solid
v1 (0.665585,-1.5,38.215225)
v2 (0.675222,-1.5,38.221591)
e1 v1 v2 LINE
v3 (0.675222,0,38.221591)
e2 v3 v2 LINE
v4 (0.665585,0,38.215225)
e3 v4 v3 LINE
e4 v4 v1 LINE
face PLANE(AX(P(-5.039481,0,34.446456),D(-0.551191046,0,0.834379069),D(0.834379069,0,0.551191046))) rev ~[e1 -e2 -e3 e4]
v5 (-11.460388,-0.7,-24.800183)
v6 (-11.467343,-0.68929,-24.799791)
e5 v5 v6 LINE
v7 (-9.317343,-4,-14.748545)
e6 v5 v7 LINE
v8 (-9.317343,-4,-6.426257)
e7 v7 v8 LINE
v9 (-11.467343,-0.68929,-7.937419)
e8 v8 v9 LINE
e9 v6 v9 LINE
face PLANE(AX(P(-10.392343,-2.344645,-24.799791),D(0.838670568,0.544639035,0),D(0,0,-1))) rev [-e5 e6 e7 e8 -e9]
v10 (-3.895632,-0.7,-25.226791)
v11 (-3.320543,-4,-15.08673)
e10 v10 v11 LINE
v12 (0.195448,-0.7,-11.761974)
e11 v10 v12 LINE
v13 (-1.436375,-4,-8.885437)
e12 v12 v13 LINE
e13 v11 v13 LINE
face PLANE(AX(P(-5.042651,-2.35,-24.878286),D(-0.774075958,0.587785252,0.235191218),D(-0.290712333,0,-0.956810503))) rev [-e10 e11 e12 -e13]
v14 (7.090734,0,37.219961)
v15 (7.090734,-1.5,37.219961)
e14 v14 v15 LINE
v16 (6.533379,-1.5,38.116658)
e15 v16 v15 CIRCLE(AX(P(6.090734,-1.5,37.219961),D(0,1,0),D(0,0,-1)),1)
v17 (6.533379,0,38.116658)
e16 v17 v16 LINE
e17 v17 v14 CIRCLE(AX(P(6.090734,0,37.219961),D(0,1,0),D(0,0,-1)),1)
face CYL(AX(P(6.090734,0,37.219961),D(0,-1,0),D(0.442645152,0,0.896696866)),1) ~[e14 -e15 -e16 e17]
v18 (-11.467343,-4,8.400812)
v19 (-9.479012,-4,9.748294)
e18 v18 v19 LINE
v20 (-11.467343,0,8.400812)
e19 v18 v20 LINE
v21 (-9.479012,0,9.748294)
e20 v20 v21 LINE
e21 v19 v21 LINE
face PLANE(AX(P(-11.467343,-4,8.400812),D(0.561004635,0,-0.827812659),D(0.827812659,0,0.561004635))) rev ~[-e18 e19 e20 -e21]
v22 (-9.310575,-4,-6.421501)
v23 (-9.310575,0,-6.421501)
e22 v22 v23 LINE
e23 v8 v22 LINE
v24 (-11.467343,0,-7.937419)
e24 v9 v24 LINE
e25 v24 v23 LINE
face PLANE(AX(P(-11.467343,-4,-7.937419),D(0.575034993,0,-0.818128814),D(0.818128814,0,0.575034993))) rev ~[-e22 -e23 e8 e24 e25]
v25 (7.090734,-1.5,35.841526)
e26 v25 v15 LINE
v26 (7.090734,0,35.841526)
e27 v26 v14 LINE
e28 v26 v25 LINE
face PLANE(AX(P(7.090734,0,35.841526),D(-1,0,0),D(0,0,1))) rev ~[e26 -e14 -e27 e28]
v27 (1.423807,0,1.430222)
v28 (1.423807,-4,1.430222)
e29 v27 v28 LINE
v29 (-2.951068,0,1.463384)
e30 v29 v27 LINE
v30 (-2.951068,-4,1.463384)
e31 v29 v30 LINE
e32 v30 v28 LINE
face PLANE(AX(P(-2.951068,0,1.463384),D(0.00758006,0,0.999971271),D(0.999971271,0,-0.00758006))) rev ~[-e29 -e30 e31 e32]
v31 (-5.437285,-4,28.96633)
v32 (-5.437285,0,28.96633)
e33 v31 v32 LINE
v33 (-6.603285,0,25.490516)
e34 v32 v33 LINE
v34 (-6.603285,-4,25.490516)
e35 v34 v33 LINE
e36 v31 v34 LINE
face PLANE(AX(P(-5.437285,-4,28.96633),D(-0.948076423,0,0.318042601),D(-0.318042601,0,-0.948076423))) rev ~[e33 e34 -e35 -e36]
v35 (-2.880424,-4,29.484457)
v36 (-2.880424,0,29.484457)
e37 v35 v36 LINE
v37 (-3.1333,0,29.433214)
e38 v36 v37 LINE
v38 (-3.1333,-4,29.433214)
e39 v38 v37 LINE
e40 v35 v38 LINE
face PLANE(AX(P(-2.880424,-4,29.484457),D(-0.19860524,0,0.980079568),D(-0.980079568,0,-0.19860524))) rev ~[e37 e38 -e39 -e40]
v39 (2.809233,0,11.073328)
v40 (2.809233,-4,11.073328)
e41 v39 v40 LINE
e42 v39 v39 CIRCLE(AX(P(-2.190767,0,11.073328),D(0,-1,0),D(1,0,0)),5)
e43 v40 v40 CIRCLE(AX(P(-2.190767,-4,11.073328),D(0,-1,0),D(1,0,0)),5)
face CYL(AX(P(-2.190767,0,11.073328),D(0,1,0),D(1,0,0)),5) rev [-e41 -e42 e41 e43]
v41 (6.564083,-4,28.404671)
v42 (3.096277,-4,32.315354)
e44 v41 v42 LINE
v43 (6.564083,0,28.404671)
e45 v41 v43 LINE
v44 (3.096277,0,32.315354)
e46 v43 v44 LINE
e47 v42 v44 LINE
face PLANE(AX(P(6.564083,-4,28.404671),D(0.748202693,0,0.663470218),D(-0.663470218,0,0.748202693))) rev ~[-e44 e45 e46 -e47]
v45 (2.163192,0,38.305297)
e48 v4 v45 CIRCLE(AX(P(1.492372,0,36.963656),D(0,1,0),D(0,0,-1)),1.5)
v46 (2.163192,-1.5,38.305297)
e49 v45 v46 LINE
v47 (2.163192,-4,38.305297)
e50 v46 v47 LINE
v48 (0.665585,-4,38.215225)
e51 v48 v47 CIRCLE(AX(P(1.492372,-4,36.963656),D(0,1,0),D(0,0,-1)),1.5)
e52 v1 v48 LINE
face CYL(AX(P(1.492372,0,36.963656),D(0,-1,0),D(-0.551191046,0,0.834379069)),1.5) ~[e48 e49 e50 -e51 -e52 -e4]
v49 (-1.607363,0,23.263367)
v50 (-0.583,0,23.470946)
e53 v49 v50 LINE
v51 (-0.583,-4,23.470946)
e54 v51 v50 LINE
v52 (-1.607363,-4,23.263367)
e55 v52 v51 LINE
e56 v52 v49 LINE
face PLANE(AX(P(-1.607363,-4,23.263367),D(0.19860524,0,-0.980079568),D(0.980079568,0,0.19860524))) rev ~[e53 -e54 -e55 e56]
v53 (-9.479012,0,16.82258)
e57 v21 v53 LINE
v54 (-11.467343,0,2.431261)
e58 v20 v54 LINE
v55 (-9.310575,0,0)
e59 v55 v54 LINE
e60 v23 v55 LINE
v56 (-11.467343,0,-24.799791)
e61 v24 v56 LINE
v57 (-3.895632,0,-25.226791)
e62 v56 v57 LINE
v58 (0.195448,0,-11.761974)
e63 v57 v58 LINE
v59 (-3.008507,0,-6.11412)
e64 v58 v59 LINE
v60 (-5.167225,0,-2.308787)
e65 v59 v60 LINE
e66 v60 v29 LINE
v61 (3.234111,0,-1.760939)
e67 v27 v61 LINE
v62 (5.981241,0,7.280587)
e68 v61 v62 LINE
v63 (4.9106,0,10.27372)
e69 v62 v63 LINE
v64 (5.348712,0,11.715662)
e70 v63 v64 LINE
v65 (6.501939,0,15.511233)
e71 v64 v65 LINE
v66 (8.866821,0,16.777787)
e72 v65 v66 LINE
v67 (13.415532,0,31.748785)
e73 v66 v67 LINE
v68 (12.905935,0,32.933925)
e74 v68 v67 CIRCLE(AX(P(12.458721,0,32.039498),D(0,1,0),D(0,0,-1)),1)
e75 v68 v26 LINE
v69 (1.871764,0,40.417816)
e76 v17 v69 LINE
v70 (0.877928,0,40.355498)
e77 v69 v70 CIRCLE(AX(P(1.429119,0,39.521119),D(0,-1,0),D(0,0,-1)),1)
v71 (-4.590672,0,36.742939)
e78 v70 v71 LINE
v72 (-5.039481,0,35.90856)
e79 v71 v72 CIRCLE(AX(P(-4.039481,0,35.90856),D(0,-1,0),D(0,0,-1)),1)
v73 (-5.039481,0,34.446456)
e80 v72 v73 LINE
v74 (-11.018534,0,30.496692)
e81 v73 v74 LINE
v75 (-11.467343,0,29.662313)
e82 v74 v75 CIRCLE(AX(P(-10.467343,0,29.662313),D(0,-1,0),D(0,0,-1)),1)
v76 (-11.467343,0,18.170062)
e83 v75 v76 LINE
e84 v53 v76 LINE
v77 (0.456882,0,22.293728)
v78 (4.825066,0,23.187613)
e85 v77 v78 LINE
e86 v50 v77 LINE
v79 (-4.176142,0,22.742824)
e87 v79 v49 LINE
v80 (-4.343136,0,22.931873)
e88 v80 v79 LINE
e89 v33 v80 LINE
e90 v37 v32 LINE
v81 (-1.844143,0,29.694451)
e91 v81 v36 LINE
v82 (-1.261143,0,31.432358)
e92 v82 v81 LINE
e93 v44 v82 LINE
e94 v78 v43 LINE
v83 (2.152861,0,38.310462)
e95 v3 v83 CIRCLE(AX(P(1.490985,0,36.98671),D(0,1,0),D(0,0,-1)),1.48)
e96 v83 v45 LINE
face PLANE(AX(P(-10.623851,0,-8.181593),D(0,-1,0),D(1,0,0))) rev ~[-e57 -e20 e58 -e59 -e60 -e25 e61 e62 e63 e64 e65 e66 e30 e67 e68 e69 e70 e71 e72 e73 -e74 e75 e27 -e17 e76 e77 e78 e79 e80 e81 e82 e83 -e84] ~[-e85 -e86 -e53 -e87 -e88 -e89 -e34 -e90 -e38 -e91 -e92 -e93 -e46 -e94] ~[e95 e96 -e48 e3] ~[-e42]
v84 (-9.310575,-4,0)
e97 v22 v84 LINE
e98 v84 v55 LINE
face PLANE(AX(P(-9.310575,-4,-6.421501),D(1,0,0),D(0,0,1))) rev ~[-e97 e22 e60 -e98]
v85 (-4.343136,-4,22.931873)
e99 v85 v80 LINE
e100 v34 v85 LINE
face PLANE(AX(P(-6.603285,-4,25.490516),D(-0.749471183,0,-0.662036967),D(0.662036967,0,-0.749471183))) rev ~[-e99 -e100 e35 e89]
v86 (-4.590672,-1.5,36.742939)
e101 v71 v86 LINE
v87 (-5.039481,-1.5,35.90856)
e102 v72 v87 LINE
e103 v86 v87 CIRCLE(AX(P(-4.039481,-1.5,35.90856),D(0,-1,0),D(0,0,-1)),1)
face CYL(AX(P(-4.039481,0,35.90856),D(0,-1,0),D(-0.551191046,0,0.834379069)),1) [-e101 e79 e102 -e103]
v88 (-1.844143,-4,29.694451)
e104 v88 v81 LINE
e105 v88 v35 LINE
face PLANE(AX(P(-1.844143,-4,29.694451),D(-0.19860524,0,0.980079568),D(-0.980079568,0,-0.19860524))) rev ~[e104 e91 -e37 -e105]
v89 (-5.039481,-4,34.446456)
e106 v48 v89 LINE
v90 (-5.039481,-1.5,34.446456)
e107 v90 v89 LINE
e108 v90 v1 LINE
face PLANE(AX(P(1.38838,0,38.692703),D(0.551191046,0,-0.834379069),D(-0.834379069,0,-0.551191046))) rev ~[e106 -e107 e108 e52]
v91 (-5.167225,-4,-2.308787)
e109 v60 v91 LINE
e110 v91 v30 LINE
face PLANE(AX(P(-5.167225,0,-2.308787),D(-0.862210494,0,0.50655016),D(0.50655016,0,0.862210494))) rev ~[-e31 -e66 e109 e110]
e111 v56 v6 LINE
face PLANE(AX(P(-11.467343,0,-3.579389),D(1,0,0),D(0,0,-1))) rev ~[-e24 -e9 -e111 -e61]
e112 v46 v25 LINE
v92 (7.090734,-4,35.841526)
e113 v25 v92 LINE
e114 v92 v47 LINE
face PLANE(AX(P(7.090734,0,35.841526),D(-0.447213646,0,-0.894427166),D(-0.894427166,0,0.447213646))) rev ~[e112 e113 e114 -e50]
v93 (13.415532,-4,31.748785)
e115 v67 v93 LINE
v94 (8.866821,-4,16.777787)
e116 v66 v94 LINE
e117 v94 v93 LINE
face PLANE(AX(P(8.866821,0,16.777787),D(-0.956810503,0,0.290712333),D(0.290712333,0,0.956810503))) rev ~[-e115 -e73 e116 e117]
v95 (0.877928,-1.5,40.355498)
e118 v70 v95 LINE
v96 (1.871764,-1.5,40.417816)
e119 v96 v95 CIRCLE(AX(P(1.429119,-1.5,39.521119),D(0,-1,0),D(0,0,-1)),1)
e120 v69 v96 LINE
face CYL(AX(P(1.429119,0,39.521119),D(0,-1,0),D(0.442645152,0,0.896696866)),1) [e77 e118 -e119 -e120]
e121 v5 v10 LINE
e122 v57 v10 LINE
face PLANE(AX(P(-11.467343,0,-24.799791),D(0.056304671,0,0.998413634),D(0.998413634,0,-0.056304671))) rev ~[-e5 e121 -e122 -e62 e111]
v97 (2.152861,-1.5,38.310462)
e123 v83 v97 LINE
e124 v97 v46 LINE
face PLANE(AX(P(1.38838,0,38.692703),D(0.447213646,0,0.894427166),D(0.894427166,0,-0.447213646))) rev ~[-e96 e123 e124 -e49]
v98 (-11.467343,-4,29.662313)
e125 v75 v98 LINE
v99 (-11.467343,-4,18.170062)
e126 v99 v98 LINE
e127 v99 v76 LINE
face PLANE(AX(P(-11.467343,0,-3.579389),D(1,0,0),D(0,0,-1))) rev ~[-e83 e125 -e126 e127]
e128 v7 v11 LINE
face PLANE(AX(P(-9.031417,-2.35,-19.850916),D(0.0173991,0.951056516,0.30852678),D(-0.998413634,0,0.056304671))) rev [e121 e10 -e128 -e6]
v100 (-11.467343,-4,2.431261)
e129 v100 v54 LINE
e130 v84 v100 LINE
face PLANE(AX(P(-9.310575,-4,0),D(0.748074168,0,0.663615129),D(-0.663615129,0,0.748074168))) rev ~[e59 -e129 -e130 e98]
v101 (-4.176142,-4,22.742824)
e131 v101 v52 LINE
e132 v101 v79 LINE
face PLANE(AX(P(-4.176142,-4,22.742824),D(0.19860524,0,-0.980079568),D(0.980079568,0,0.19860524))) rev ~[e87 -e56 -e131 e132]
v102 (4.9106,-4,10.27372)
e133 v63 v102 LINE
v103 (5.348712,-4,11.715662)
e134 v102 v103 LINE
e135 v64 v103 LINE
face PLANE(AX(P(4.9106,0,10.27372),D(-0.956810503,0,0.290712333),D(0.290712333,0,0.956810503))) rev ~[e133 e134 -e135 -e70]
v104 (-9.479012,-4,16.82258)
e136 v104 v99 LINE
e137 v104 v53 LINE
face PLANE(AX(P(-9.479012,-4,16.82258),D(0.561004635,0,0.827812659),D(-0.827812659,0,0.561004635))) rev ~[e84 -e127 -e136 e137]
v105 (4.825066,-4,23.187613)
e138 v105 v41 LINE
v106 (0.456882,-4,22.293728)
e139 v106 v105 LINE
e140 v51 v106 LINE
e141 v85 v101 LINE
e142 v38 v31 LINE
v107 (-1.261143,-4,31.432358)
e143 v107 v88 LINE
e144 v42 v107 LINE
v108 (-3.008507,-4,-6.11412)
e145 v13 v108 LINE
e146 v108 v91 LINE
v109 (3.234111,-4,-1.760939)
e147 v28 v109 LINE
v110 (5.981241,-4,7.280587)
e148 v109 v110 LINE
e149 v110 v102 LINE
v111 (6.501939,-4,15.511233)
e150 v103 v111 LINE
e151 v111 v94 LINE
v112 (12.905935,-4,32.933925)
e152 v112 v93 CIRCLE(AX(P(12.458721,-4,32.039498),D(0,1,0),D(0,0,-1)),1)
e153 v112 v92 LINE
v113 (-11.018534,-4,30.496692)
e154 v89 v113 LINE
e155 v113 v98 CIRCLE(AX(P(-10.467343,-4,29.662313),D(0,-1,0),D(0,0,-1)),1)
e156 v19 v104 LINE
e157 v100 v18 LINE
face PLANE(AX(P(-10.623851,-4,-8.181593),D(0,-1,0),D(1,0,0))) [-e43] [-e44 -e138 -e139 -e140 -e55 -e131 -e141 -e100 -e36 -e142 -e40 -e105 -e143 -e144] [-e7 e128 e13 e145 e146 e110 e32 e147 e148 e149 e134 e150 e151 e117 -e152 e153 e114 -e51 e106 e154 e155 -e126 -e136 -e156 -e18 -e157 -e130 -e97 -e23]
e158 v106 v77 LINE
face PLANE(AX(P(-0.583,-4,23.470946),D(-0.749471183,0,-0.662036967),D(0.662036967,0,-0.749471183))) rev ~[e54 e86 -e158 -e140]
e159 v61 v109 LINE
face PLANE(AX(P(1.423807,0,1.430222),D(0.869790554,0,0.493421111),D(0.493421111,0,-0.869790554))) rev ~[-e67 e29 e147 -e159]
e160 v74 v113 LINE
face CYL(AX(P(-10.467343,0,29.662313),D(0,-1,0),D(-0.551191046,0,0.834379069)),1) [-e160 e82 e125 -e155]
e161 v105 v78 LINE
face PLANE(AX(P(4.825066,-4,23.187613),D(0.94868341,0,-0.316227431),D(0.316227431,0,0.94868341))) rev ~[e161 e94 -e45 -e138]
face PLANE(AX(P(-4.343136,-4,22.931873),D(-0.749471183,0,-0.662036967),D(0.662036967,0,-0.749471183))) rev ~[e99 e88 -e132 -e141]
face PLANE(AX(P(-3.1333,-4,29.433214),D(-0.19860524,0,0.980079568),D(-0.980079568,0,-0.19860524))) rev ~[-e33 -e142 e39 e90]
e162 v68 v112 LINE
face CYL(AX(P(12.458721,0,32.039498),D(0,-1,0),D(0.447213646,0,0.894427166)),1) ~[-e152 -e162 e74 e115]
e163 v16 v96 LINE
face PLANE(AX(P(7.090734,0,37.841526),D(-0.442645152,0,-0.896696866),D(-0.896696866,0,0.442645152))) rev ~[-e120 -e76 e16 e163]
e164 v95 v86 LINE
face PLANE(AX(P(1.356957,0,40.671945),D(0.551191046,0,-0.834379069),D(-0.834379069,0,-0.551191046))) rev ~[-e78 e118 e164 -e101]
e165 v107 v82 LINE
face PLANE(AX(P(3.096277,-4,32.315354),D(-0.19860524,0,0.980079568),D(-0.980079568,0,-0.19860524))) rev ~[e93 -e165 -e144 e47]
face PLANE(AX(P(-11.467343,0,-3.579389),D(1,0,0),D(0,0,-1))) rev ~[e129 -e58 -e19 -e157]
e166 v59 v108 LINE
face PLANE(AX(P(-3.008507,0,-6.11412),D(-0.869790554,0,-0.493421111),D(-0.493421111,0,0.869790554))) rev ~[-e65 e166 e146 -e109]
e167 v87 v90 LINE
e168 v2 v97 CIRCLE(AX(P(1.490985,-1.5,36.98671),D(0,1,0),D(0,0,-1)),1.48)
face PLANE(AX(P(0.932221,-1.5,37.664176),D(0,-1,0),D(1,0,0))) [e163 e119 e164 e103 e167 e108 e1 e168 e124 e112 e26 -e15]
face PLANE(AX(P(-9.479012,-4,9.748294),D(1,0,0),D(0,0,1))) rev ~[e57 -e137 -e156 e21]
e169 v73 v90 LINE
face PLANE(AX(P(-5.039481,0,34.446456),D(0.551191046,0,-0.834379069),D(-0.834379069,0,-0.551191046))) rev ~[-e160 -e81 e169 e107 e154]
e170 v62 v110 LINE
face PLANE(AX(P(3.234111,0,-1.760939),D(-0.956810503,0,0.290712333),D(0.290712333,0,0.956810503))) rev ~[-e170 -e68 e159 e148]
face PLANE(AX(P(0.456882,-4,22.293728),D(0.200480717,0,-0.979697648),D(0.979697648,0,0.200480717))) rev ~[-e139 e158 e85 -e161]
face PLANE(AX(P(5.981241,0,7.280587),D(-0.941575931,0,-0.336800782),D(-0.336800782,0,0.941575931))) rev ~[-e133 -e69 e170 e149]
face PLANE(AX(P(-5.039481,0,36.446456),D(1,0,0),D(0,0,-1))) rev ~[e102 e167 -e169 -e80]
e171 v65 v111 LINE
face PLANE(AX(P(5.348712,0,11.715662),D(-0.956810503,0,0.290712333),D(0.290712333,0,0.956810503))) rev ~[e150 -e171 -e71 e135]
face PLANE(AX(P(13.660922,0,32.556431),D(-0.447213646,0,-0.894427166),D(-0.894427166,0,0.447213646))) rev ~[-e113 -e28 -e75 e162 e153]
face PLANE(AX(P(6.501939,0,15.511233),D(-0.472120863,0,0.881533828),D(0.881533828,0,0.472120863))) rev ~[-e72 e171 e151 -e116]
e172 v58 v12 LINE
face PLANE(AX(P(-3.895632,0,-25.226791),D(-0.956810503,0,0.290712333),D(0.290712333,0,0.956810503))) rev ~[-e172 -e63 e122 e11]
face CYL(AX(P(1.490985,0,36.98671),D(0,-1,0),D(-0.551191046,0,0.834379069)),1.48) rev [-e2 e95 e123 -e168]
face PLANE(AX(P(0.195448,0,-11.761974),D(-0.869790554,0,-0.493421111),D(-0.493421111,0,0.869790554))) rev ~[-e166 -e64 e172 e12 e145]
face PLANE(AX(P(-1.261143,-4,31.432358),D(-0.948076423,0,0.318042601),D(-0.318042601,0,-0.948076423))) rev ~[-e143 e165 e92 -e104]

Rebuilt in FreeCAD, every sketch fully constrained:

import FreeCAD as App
import Part
import Sketcher

V = App.Vector
Q = App.Units.Quantity


def edges_at(feature, points):
    """Names of the edges that pass closest to the given points."""
    edges = feature.Shape.Edges
    near = lambda p: min(range(len(edges)), key=lambda i: edges[i].distToShape(Part.Vertex(*p))[0])
    return sorted({f"Edge{near(p) + 1}" for p in points})

doc = App.newDocument("Part")
body = doc.addObject("PartDesign::Body", "Body")

# Sketch on XZ plane
sketch1 = doc.addObject("Sketcher::SketchObject", "Sketch")
body.addObject(sketch1)
sketch1.AttachmentSupport = (doc.XZ_Plane, [""])
sketch1.MapMode = "FlatFace"
sketch1.addGeometry([
    Part.LineSegment(V(-5.039481, 34.446456, 0), V(-11.467343, 30.200209, 0)),  # 0
    Part.LineSegment(V(-11.467343, 30.200209, 0), V(-11.467343, 14.318069, 0)),  # 1
    Part.LineSegment(V(-11.467343, 14.318069, 0), V(-9.520547, 12.954452, 0)),  # 2
    Part.LineSegment(V(-9.520547, 12.954452, 0), V(-9.520547, 5.965922, 0)),  # 3
    Part.LineSegment(V(-9.520547, 5.965922, 0), V(-11.467343, 4.602306, 0)),  # 4
    Part.LineSegment(V(-11.467343, 4.602306, 0), V(-11.467343, -3.579389, 0)),  # 5
    Part.LineSegment(V(-11.467343, -3.579389, 0), V(-9.520547, -4.943006, 0)),  # 6
    Part.LineSegment(V(-9.520547, -4.943006, 0), V(-9.520547, -11.420181, 0)),  # 7
    Part.LineSegment(V(-9.520547, -11.420181, 0), V(-11.467343, -12.783796, 0)),  # 8
    Part.LineSegment(V(-11.467343, -12.783796, 0), V(-11.467343, -24.799791, 0)),  # 9
    Part.LineSegment(V(-11.467343, -24.799791, 0), V(-3.895632, -25.226791, 0)),  # 10
    Part.LineSegment(V(-3.895632, -25.226791, 0), V(0.195448, -11.761974, 0)),  # 11
    Part.LineSegment(V(0.195448, -11.761974, 0), V(-3.008507, -6.11412, 0)),  # 12
    Part.LineSegment(V(-3.008507, -6.11412, 0), V(-5.167225, -2.308787, 0)),  # 13
    Part.LineSegment(V(-5.167225, -2.308787, 0), V(-2.951068, 1.463384, 0)),  # 14
    Part.LineSegment(V(-2.951068, 1.463384, 0), V(1.423807, 1.430222, 0)),  # 15
    Part.LineSegment(V(1.423807, 1.430222, 0), V(3.234111, -1.760939, 0)),  # 16
    Part.LineSegment(V(3.234111, -1.760939, 0), V(5.981241, 7.280587, 0)),  # 17
    Part.LineSegment(V(5.981241, 7.280587, 0), V(4.9106, 10.27372, 0)),  # 18
    Part.LineSegment(V(4.9106, 10.27372, 0), V(5.348712, 11.715662, 0)),  # 19
    Part.LineSegment(V(5.348712, 11.715662, 0), V(6.501939, 15.511233, 0)),  # 20
    Part.LineSegment(V(6.501939, 15.511233, 0), V(8.866821, 16.777787, 0)),  # 21
    Part.LineSegment(V(8.866821, 16.777787, 0), V(13.660922, 32.556431, 0)),  # 22
    Part.LineSegment(V(13.660922, 32.556431, 0), V(7.090734, 35.841526, 0)),  # 23
    Part.LineSegment(V(7.090734, 35.841526, 0), V(1.38838, 38.692703, 0)),  # 24
    Part.LineSegment(V(1.38838, 38.692703, 0), V(-5.039481, 34.446456, 0)),  # 25
    Part.Circle(V(-2.190767, 11.073328, 0), V(0, 0, 1), 5),  # 26
], False)
sketch1.addConstraint([
    Sketcher.Constraint("Coincident", 0, 2, 1, 1),
    Sketcher.Constraint("Coincident", 1, 2, 2, 1),
    Sketcher.Constraint("Coincident", 2, 2, 3, 1),
    Sketcher.Constraint("Coincident", 3, 2, 4, 1),
    Sketcher.Constraint("Coincident", 4, 2, 5, 1),
    Sketcher.Constraint("Coincident", 5, 2, 6, 1),
    Sketcher.Constraint("Coincident", 6, 2, 7, 1),
    Sketcher.Constraint("Coincident", 7, 2, 8, 1),
    Sketcher.Constraint("Coincident", 8, 2, 9, 1),
    Sketcher.Constraint("Coincident", 9, 2, 10, 1),
    Sketcher.Constraint("Coincident", 10, 2, 11, 1),
    Sketcher.Constraint("Coincident", 11, 2, 12, 1),
    Sketcher.Constraint("Coincident", 12, 2, 13, 1),
    Sketcher.Constraint("Coincident", 13, 2, 14, 1),
    Sketcher.Constraint("Coincident", 14, 2, 15, 1),
    Sketcher.Constraint("Coincident", 15, 2, 16, 1),
    Sketcher.Constraint("Coincident", 16, 2, 17, 1),
    Sketcher.Constraint("Coincident", 17, 2, 18, 1),
    Sketcher.Constraint("Coincident", 18, 2, 19, 1),
    Sketcher.Constraint("Coincident", 19, 2, 20, 1),
    Sketcher.Constraint("Coincident", 20, 2, 21, 1),
    Sketcher.Constraint("Coincident", 21, 2, 22, 1),
    Sketcher.Constraint("Coincident", 22, 2, 23, 1),
    Sketcher.Constraint("Coincident", 23, 2, 24, 1),
    Sketcher.Constraint("Coincident", 24, 2, 25, 1),
    Sketcher.Constraint("Coincident", 25, 2, 0, 1),
    Sketcher.Constraint("Vertical", 1),
    Sketcher.Constraint("Vertical", 3),
    Sketcher.Constraint("Vertical", 5),
    Sketcher.Constraint("Vertical", 7),
    Sketcher.Constraint("Vertical", 9),
    Sketcher.Constraint("Parallel", 2, 6),
    Sketcher.Constraint("Parallel", 4, 8),
    Sketcher.Constraint("Parallel", 12, 13),
    Sketcher.Constraint("Parallel", 13, 16),
    Sketcher.Constraint("Parallel", 11, 17),
    Sketcher.Constraint("Parallel", 17, 19),
    Sketcher.Constraint("Parallel", 19, 20),
    Sketcher.Constraint("Parallel", 20, 22),
    Sketcher.Constraint("Parallel", 23, 24),
    Sketcher.Constraint("Parallel", 0, 25),
    Sketcher.Constraint("Vertical", 1, 2, 4, 2),
    Sketcher.Constraint("Vertical", 3, 2, 6, 2),
    Sketcher.Constraint("Vertical", 5, 2, 8, 2),
    Sketcher.Constraint("Equal", 2, 4),
    Sketcher.Constraint("Equal", 13, 14),
    Sketcher.Constraint("Equal", 14, 15),
    Sketcher.Constraint("Equal", 0, 25),
    Sketcher.Constraint("Diameter", 26, Q("10 mm")),
    Sketcher.Constraint("Distance", 13, Q("4.375 mm")),
    Sketcher.Constraint("DistanceY", 10, 2, 9, 2, Q("0.427 mm")),
    Sketcher.Constraint("Distance", 20, Q("3.9669 mm")),
    Sketcher.Constraint("DistanceY", 1, 2, 1, 1, Q("15.88214 mm")),
    Sketcher.Constraint("DistanceY", 3, 2, 3, 1, Q("6.988531 mm")),
    Sketcher.Constraint("DistanceX", -1, 1, 18, 2, Q("4.9106 mm")),
    Sketcher.Constraint("DistanceY", 9, 2, 5, 2, Q("21.220402 mm")),
    Sketcher.Constraint("DistanceY", 15, 2, 3, 2, Q("4.5357 mm")),
    Sketcher.Constraint("DistanceY", 15, 2, 18, 2, Q("8.843499 mm")),
    Sketcher.Constraint("DistanceY", 17, 2, 21, 2, Q("9.4972 mm")),
    Sketcher.Constraint("DistanceX", 21, 2, 22, 2, Q("4.794101 mm")),
    Sketcher.Constraint("DistanceY", 20, 2, 22, 2, Q("17.045198 mm")),
    Sketcher.Constraint("Distance", 2, Q("2.37686 mm")),
    Sketcher.Constraint("Distance", 10, Q("7.583742 mm")),
    Sketcher.Constraint("Distance", 12, Q("6.49335 mm")),
    Sketcher.Constraint("Distance", 17, Q("9.449651 mm")),
    Sketcher.Constraint("Distance", 19, Q("1.507029 mm")),
    Sketcher.Constraint("Distance", 21, Q("2.68269 mm")),
    Sketcher.Constraint("DistanceY", 5, 2, 5, 1, Q("8.181695 mm")),
    Sketcher.Constraint("DistanceY", 7, 2, 7, 1, Q("6.477175 mm")),
    Sketcher.Constraint("DistanceY", 9, 2, 9, 1, Q("12.015995 mm")),
    Sketcher.Constraint("DistanceY", -1, 1, 0, 2, Q("30.200209 mm")),
    Sketcher.Constraint("DistanceX", 10, 2, -1, 1, Q("3.895632 mm")),
    Sketcher.Constraint("DistanceX", -1, 1, 11, 2, Q("0.195448 mm")),
    Sketcher.Constraint("DistanceY", 12, 2, -1, 1, Q("6.11412 mm")),
    Sketcher.Constraint("DistanceX", -1, 1, 16, 2, Q("3.234111 mm")),
    Sketcher.Constraint("DistanceY", 16, 2, -1, 1, Q("1.760939 mm")),
    Sketcher.Constraint("DistanceX", -1, 1, 24, 2, Q("1.38838 mm")),
    Sketcher.Constraint("DistanceY", 26, 3, 0, 2, Q("19.126881 mm")),
    Sketcher.Constraint("DistanceX", 2, 2, 26, 3, Q("7.32978 mm")),
    Sketcher.Constraint("DistanceX", 23, 2, 22, 2, Q("6.570189 mm")),
    Sketcher.Constraint("DistanceY", 21, 2, 23, 2, Q("19.063739 mm")),
])
pad1 = doc.addObject("PartDesign::Pad", "Pad")
body.addObject(pad1)
pad1.Profile = sketch1
pad1.Length = 4
doc.recompute()

fillet = doc.addObject("PartDesign::Fillet", "Fillet")
body.addObject(fillet)
fillet.Base = (pad1, edges_at(pad1, [(-11.467, -2, 30.2), (13.661, -2, 32.556)]))
fillet.Radius = 1
doc.recompute()

fillet2 = doc.addObject("PartDesign::Fillet", "Fillet001")
body.addObject(fillet2)
fillet2.Base = (fillet, edges_at(fillet, [(1.388, -2, 38.693)]))
fillet2.Radius = 1.5

# Sketch on XZ plane
sketch2 = doc.addObject("Sketcher::SketchObject", "Sketch001")
body.addObject(sketch2)
sketch2.AttachmentSupport = (doc.XZ_Plane, [""])
sketch2.MapMode = "FlatFace"
sketch2.addGeometry([
    Part.LineSegment(V(-5.039481, 36.446456, 0), V(-5.039481, 34.446456, 0)),  # 0
    Part.LineSegment(V(-5.039481, 34.446456, 0), V(1.38838, 38.692703, 0)),  # 1
    Part.LineSegment(V(1.38838, 38.692703, 0), V(7.090734, 35.841526, 0)),  # 2
    Part.LineSegment(V(7.090734, 35.841526, 0), V(7.090734, 37.841526, 0)),  # 3
    Part.LineSegment(V(7.090734, 37.841526, 0), V(1.356957, 40.671945, 0)),  # 4
    Part.LineSegment(V(1.356957, 40.671945, 0), V(-5.039481, 36.446456, 0)),  # 5
], False)
sketch2.addConstraint([
    Sketcher.Constraint("Coincident", 0, 2, 1, 1),
    Sketcher.Constraint("Coincident", 1, 2, 2, 1),
    Sketcher.Constraint("Coincident", 2, 2, 3, 1),
    Sketcher.Constraint("Coincident", 3, 2, 4, 1),
    Sketcher.Constraint("Coincident", 4, 2, 5, 1),
    Sketcher.Constraint("Coincident", 5, 2, 0, 1),
    Sketcher.Constraint("Vertical", 0),
    Sketcher.Constraint("Vertical", 3),
    Sketcher.Constraint("Parallel", 1, 5),
    Sketcher.Constraint("Equal", 0, 3),
    Sketcher.Constraint("DistanceY", 0, 2, 0, 1, Q("2 mm")),
    Sketcher.Constraint("Distance", 4, Q("6.394331 mm")),
    Sketcher.Constraint("DistanceX", 0, 2, -1, 1, Q("5.039481 mm")),
    Sketcher.Constraint("DistanceX", -1, 1, 1, 2, Q("1.38838 mm")),
    Sketcher.Constraint("DistanceY", 0, 2, 2, 2, Q("1.39507 mm")),
    Sketcher.Constraint("DistanceY", 3, 2, 4, 2, Q("2.83042 mm")),
    Sketcher.Constraint("DistanceX", 0, 2, 4, 2, Q("6.396439 mm")),
    Sketcher.Constraint("DistanceY", -1, 1, 0, 2, Q("34.446456 mm")),
])
pad2 = doc.addObject("PartDesign::Pad", "Pad001")
body.addObject(pad2)
pad2.Profile = sketch2
pad2.Length = 1.5
doc.recompute()

fillet3 = doc.addObject("PartDesign::Fillet", "Fillet002")
body.addObject(fillet3)
fillet3.Base = (pad2, edges_at(pad2, [(1.388, -0.75, 38.693)]))
fillet3.Radius = 1.48
doc.recompute()

fillet4 = doc.addObject("PartDesign::Fillet", "Fillet003")
body.addObject(fillet4)
fillet4.Base = (fillet3, edges_at(fillet3, [(1.357, -0.75, 40.672)]))
fillet4.Radius = 1
doc.recompute()

fillet5 = doc.addObject("PartDesign::Fillet", "Fillet004")
body.addObject(fillet5)
fillet5.Base = (fillet4, edges_at(fillet4, [(7.091, -0.75, 37.842), (-5.039, -0.75, 36.446)]))
fillet5.Radius = 1

# Sketch on XZ plane
sketch3 = doc.addObject("Sketcher::SketchObject", "Sketch002")
body.addObject(sketch3)
sketch3.AttachmentSupport = (doc.XZ_Plane, [""])
sketch3.MapMode = "FlatFace"
sketch3.addGeometry([
    Part.LineSegment(V(-9.520547, 12.954452, 0), V(-11.467343, 14.318069, 0)),
    Part.LineSegment(V(-11.467343, 14.318069, 0), V(-11.467343, 4.602306, 0)),
    Part.LineSegment(V(-11.467343, 4.602306, 0), V(-9.520547, 5.965922, 0)),
    Part.LineSegment(V(-9.520547, 5.965922, 0), V(-9.520547, 12.954452, 0)),
], False)
sketch3.addConstraint([
    Sketcher.Constraint("Coincident", 0, 2, 1, 1),
    Sketcher.Constraint("Coincident", 1, 2, 2, 1),
    Sketcher.Constraint("Coincident", 2, 2, 3, 1),
    Sketcher.Constraint("Coincident", 3, 2, 0, 1),
    Sketcher.Constraint("Vertical", 1),
    Sketcher.Constraint("Vertical", 3),
    Sketcher.Constraint("Equal", 0, 2),
    Sketcher.Constraint("DistanceY", 3, 1, 3, 2, Q("6.988531 mm")),
    Sketcher.Constraint("Distance", 0, Q("2.37686 mm")),
    Sketcher.Constraint("DistanceY", 1, 2, 1, 1, Q("9.715763 mm")),
    Sketcher.Constraint("DistanceY", -1, 1, 0, 2, Q("14.318069 mm")),
    Sketcher.Constraint("DistanceX", 0, 2, -1, 1, Q("11.467343 mm")),
])
pad3 = doc.addObject("PartDesign::Pad", "Pad002")
body.addObject(pad3)
pad3.Profile = sketch3
pad3.Length = 4

# Sketch on XZ plane
sketch4 = doc.addObject("Sketcher::SketchObject", "Sketch003")
body.addObject(sketch4)
sketch4.AttachmentSupport = (doc.XZ_Plane, [""])
sketch4.MapMode = "FlatFace"
sketch4.addGeometry([
    Part.LineSegment(V(-9.520547, -4.943006, 0), V(-11.467343, -3.579389, 0)),
    Part.LineSegment(V(-11.467343, -3.579389, 0), V(-11.467343, -12.783796, 0)),
    Part.LineSegment(V(-11.467343, -12.783796, 0), V(-9.520547, -11.420181, 0)),
    Part.LineSegment(V(-9.520547, -11.420181, 0), V(-9.520547, -4.943006, 0)),
], False)
sketch4.addConstraint([
    Sketcher.Constraint("Coincident", 0, 2, 1, 1),
    Sketcher.Constraint("Coincident", 1, 2, 2, 1),
    Sketcher.Constraint("Coincident", 2, 2, 3, 1),
    Sketcher.Constraint("Coincident", 3, 2, 0, 1),
    Sketcher.Constraint("Vertical", 1),
    Sketcher.Constraint("Vertical", 3),
    Sketcher.Constraint("Equal", 0, 2),
    Sketcher.Constraint("Distance", 0, Q("2.37686 mm")),
    Sketcher.Constraint("DistanceY", 1, 2, 1, 1, Q("9.204407 mm")),
    Sketcher.Constraint("DistanceY", 3, 1, 3, 2, Q("6.477175 mm")),
    Sketcher.Constraint("DistanceY", 0, 2, -1, 1, Q("3.579389 mm")),
    Sketcher.Constraint("DistanceX", 0, 2, -1, 1, Q("11.467343 mm")),
])
pad4 = doc.addObject("PartDesign::Pad", "Pad003")
body.addObject(pad4)
pad4.Profile = sketch4
pad4.Length = 4

# Sketch on XZ plane
sketch5 = doc.addObject("Sketcher::SketchObject", "Sketch004")
body.addObject(sketch5)
sketch5.AttachmentSupport = (doc.XZ_Plane, [""])
sketch5.MapMode = "FlatFace"
sketch5.AttachmentOffset = App.Placement(V(0, 0, 4), App.Rotation())
sketch5.addGeometry([
    Part.LineSegment(V(-11.467343, 18.170062, 0), V(-11.467343, 8.400812, 0)),
    Part.LineSegment(V(-11.467343, 8.400812, 0), V(-9.479012, 9.748294, 0)),
    Part.LineSegment(V(-9.479012, 9.748294, 0), V(-9.479012, 16.82258, 0)),
    Part.LineSegment(V(-9.479012, 16.82258, 0), V(-11.467343, 18.170062, 0)),
], False)
sketch5.addConstraint([
    Sketcher.Constraint("Coincident", 0, 2, 1, 1),
    Sketcher.Constraint("Coincident", 1, 2, 2, 1),
    Sketcher.Constraint("Coincident", 2, 2, 3, 1),
    Sketcher.Constraint("Coincident", 3, 2, 0, 1),
    Sketcher.Constraint("Vertical", 0),
    Sketcher.Constraint("Vertical", 2),
    Sketcher.Constraint("Equal", 1, 3),
    Sketcher.Constraint("DistanceY", 0, 2, 0, 1, Q("9.769251 mm")),
    Sketcher.Constraint("Distance", 1, Q("2.401909 mm")),
    Sketcher.Constraint("DistanceY", 2, 1, 2, 2, Q("7.074286 mm")),
    Sketcher.Constraint("DistanceY", -1, 1, 0, 2, Q("8.400812 mm")),
    Sketcher.Constraint("DistanceX", 1, 2, -1, 1, Q("9.479012 mm")),
])
pocket1 = doc.addObject("PartDesign::Pocket", "Pocket")
body.addObject(pocket1)
pocket1.Profile = sketch5
pocket1.Length = 25

# Sketch on XZ plane
sketch6 = doc.addObject("Sketcher::SketchObject", "Sketch005")
body.addObject(sketch6)
sketch6.AttachmentSupport = (doc.XZ_Plane, [""])
sketch6.MapMode = "FlatFace"
sketch6.AttachmentOffset = App.Placement(V(0, 0, 4), App.Rotation())
sketch6.addGeometry([
    Part.LineSegment(V(-11.467343, 2.431261, 0), V(-11.467343, -7.937419, 0)),
    Part.LineSegment(V(-11.467343, -7.937419, 0), V(-9.310575, -6.421501, 0)),
    Part.LineSegment(V(-9.310575, -6.421501, 0), V(-9.310575, 0, 0)),
    Part.LineSegment(V(-9.310575, 0, 0), V(-11.467343, 2.431261, 0)),
], False)
sketch6.addConstraint([
    Sketcher.Constraint("Coincident", 0, 2, 1, 1),
    Sketcher.Constraint("Coincident", 1, 2, 2, 1),
    Sketcher.Constraint("Coincident", 2, 2, 3, 1),
    Sketcher.Constraint("Coincident", 3, 2, 0, 1),
    Sketcher.Constraint("Vertical", 0),
    Sketcher.Constraint("Vertical", 2),
    Sketcher.Constraint("PointOnObject", 2, 2, -1),
    Sketcher.Constraint("DistanceY", 2, 1, 2, 2, Q("6.421501 mm")),
    Sketcher.Constraint("DistanceY", 0, 2, 0, 1, Q("10.36868 mm")),
    Sketcher.Constraint("Distance", 1, Q("2.636219 mm")),
    Sketcher.Constraint("DistanceY", 0, 2, -1, 1, Q("7.937419 mm")),
    Sketcher.Constraint("DistanceX", 0, 2, -1, 1, Q("11.467343 mm")),
])
pocket2 = doc.addObject("PartDesign::Pocket", "Pocket001")
body.addObject(pocket2)
pocket2.Profile = sketch6
pocket2.Length = 25

# Sketch on XZ plane
sketch7 = doc.addObject("Sketcher::SketchObject", "Sketch006")
body.addObject(sketch7)
sketch7.AttachmentSupport = (doc.XZ_Plane, [""])
sketch7.MapMode = "FlatFace"
sketch7.AttachmentOffset = App.Placement(V(0, 0, 4), App.Rotation())
sketch7.addGeometry([
    Part.LineSegment(V(4.825066, 23.187613, 0), V(6.564083, 28.404671, 0)),  # 0
    Part.LineSegment(V(6.564083, 28.404671, 0), V(3.096277, 32.315354, 0)),  # 1
    Part.LineSegment(V(3.096277, 32.315354, 0), V(-1.261143, 31.432358, 0)),  # 2
    Part.LineSegment(V(-1.261143, 31.432358, 0), V(-1.844143, 29.694451, 0)),  # 3
    Part.LineSegment(V(-1.844143, 29.694451, 0), V(0.583, 26.946759, 0)),  # 4
    Part.LineSegment(V(0.583, 26.946759, 0), V(-0.583, 23.470946, 0)),  # 5
    Part.LineSegment(V(-0.583, 23.470946, 0), V(0.456882, 22.293728, 0)),  # 6
    Part.LineSegment(V(0.456882, 22.293728, 0), V(4.825066, 23.187613, 0)),  # 7
], False)
sketch7.addConstraint([
    Sketcher.Constraint("Coincident", 0, 2, 1, 1),
    Sketcher.Constraint("Coincident", 1, 2, 2, 1),
    Sketcher.Constraint("Coincident", 2, 2, 3, 1),
    Sketcher.Constraint("Coincident", 3, 2, 4, 1),
    Sketcher.Constraint("Coincident", 4, 2, 5, 1),
    Sketcher.Constraint("Coincident", 5, 2, 6, 1),
    Sketcher.Constraint("Coincident", 6, 2, 7, 1),
    Sketcher.Constraint("Coincident", 7, 2, 0, 1),
    Sketcher.Constraint("Parallel", 3, 5),
    Sketcher.Constraint("Parallel", 4, 6),
    Sketcher.Constraint("Equal", 4, 5),
    Sketcher.Constraint("DistanceX", -1, 1, 4, 2, Q("0.583 mm")),
    Sketcher.Constraint("DistanceX", 5, 2, -1, 1, Q("0.583 mm")),
    Sketcher.Constraint("DistanceX", 3, 2, 2, 2, Q("0.583 mm")),
    Sketcher.Constraint("DistanceY", 4, 2, 2, 2, Q("4.485599 mm")),
    Sketcher.Constraint("DistanceX", 6, 2, 0, 2, Q("6.107201 mm")),
    Sketcher.Constraint("Distance", 0, Q("5.499261 mm")),
    Sketcher.Constraint("Distance", 1, Q("5.226769 mm")),
    Sketcher.Constraint("Distance", 6, Q("1.570731 mm")),
    Sketcher.Constraint("DistanceY", -1, 1, 0, 2, Q("28.404671 mm")),
    Sketcher.Constraint("DistanceY", -1, 1, 3, 2, Q("29.694451 mm")),
    Sketcher.Constraint("DistanceY", -1, 1, 4, 2, Q("26.946759 mm")),
    Sketcher.Constraint("DistanceX", 2, 2, 1, 2, Q("4.357421 mm")),
    Sketcher.Constraint("DistanceX", 1, 2, 7, 2, Q("1.728789 mm")),
])
pocket3 = doc.addObject("PartDesign::Pocket", "Pocket002")
body.addObject(pocket3)
pocket3.Profile = sketch7
pocket3.Length = 25

# Sketch on XZ plane
sketch8 = doc.addObject("Sketcher::SketchObject", "Sketch007")
body.addObject(sketch8)
sketch8.AttachmentSupport = (doc.XZ_Plane, [""])
sketch8.MapMode = "FlatFace"
sketch8.AttachmentOffset = App.Placement(V(0, 0, 4), App.Rotation())
sketch8.addGeometry([
    Part.LineSegment(V(-4.343136, 22.931873, 0), V(-1.778746, 23.456638, 0)),  # 0
    Part.LineSegment(V(-1.778746, 23.456638, 0), V(-4.211144, 26.199679, 0)),  # 1
    Part.LineSegment(V(-4.211144, 26.199679, 0), V(-3.1333, 29.433214, 0)),  # 2
    Part.LineSegment(V(-3.1333, 29.433214, 0), V(-5.437285, 28.96633, 0)),  # 3
    Part.LineSegment(V(-5.437285, 28.96633, 0), V(-6.603285, 25.490516, 0)),  # 4
    Part.LineSegment(V(-6.603285, 25.490516, 0), V(-4.343136, 22.931873, 0)),  # 5
], False)
sketch8.addConstraint([
    Sketcher.Constraint("Coincident", 0, 2, 1, 1),
    Sketcher.Constraint("Coincident", 1, 2, 2, 1),
    Sketcher.Constraint("Coincident", 2, 2, 3, 1),
    Sketcher.Constraint("Coincident", 3, 2, 4, 1),
    Sketcher.Constraint("Coincident", 4, 2, 5, 1),
    Sketcher.Constraint("Coincident", 5, 2, 0, 1),
    Sketcher.Constraint("Equal", 1, 4),
    Sketcher.Constraint("DistanceX", 4, 2, 3, 2, Q("1.166 mm")),
    Sketcher.Constraint("DistanceX", 2, 2, -1, 1, Q("3.1333 mm")),
    Sketcher.Constraint("Distance", 5, Q("3.413931 mm")),
    Sketcher.Constraint("DistanceY", -1, 1, 1, 2, Q("26.199679 mm")),
    Sketcher.Constraint("DistanceY", -1, 1, 3, 2, Q("28.96633 mm")),
    Sketcher.Constraint("DistanceY", 0, 2, 1, 2, Q("2.743041 mm")),
    Sketcher.Constraint("DistanceX", 3, 2, 1, 2, Q("1.226142 mm")),
    Sketcher.Constraint("DistanceX", 3, 2, 0, 2, Q("3.658539 mm")),
    Sketcher.Constraint("DistanceX", 5, 2, 0, 2, Q("2.56439 mm")),
    Sketcher.Constraint("DistanceY", 5, 2, 2, 2, Q("6.501341 mm")),
    Sketcher.Constraint("Distance", 2, Q("3.408444 mm")),
])
pocket4 = doc.addObject("PartDesign::Pocket", "Pocket003")
body.addObject(pocket4)
pocket4.Profile = sketch8
pocket4.Length = 25

# Sketch on XZ plane
sketch9 = doc.addObject("Sketcher::SketchObject", "Sketch008")
body.addObject(sketch9)
sketch9.AttachmentSupport = (doc.XZ_Plane, [""])
sketch9.MapMode = "FlatFace"
sketch9.AttachmentOffset = App.Placement(V(0, 0, 4), App.Rotation())
sketch9.addGeometry([
    Part.LineSegment(V(-3.010143, 26.218638, 0), V(-1.447683, 24.449827, 0)),
    Part.LineSegment(V(-1.447683, 24.449827, 0), V(-0.619401, 26.934677, 0)),
    Part.LineSegment(V(-0.619401, 26.934677, 0), V(-2.179681, 28.694221, 0)),
    Part.LineSegment(V(-2.179681, 28.694221, 0), V(-3.010143, 26.218638, 0)),
], False)
sketch9.addConstraint([
    Sketcher.Constraint("Coincident", 0, 2, 1, 1),
    Sketcher.Constraint("Coincident", 1, 2, 2, 1),
    Sketcher.Constraint("Coincident", 2, 2, 3, 1),
    Sketcher.Constraint("Coincident", 3, 2, 0, 1),
    Sketcher.Constraint("DistanceX", 1, 2, -1, 1, Q("0.619401 mm")),
    Sketcher.Constraint("Distance", 0, Q("2.360078 mm")),
    Sketcher.Constraint("Distance", 1, Q("2.619261 mm")),
    Sketcher.Constraint("DistanceX", 2, 2, -1, 1, Q("2.179681 mm")),
    Sketcher.Constraint("DistanceY", -1, 1, 2, 2, Q("28.694221 mm")),
    Sketcher.Constraint("DistanceY", 0, 2, 1, 2, Q("2.48485 mm")),
    Sketcher.Constraint("DistanceX", 3, 2, 0, 2, Q("1.562459 mm")),
    Sketcher.Constraint("Distance", 2, Q("2.351695 mm")),
])
pocket5 = doc.addObject("PartDesign::Pocket", "Pocket004")
body.addObject(pocket5)
pocket5.Profile = sketch9
pocket5.Length = 25

# Sketch on XZ plane
sketch10 = doc.addObject("Sketcher::SketchObject", "Sketch009")
body.addObject(sketch10)
sketch10.AttachmentSupport = (doc.XZ_Plane, [""])
sketch10.MapMode = "FlatFace"
sketch10.AttachmentOffset = App.Placement(V(0, 0, 4), App.Rotation())
sketch10.addGeometry([
    Part.LineSegment(V(-1.778746, 23.456638, 0), V(-1.447683, 24.449827, 0)),  # 0
    Part.LineSegment(V(-1.447683, 24.449827, 0), V(-3.010143, 26.218638, 0)),  # 1
    Part.LineSegment(V(-3.010143, 26.218638, 0), V(-2.179681, 28.694221, 0)),  # 2
    Part.LineSegment(V(-2.179681, 28.694221, 0), V(-2.880424, 29.484457, 0)),  # 3
    Part.LineSegment(V(-2.880424, 29.484457, 0), V(-3.1333, 29.433214, 0)),  # 4
    Part.LineSegment(V(-3.1333, 29.433214, 0), V(-4.211144, 26.199679, 0)),  # 5
    Part.LineSegment(V(-4.211144, 26.199679, 0), V(-1.778746, 23.456638, 0)),  # 6
], False)
sketch10.addConstraint([
    Sketcher.Constraint("Coincident", 0, 2, 1, 1),
    Sketcher.Constraint("Coincident", 1, 2, 2, 1),
    Sketcher.Constraint("Coincident", 2, 2, 3, 1),
    Sketcher.Constraint("Coincident", 3, 2, 4, 1),
    Sketcher.Constraint("Coincident", 4, 2, 5, 1),
    Sketcher.Constraint("Coincident", 5, 2, 6, 1),
    Sketcher.Constraint("Coincident", 6, 2, 0, 1),
    Sketcher.Constraint("DistanceX", 5, 2, 1, 2, Q("1.201001 mm")),
    Sketcher.Constraint("DistanceY", 6, 2, 1, 2, Q("2.762 mm")),
    Sketcher.Constraint("DistanceX", 4, 2, -1, 1, Q("3.1333 mm")),
    Sketcher.Constraint("Distance", 1, Q("2.360078 mm")),
    Sketcher.Constraint("Distance", 3, Q("1.056179 mm")),
    Sketcher.Constraint("DistanceX", 2, 2, -1, 1, Q("2.179681 mm")),
    Sketcher.Constraint("DistanceY", -1, 1, 2, 2, Q("28.694221 mm")),
    Sketcher.Constraint("DistanceY", -1, 1, 5, 2, Q("26.199679 mm")),
    Sketcher.Constraint("DistanceX", 1, 2, 0, 2, Q("1.562459 mm")),
    Sketcher.Constraint("DistanceX", 1, 2, 2, 2, Q("0.830462 mm")),
    Sketcher.Constraint("DistanceX", 1, 2, 3, 2, Q("0.129718 mm")),
    Sketcher.Constraint("DistanceY", 1, 2, 3, 2, Q("3.265819 mm")),
    Sketcher.Constraint("DistanceX", 3, 2, 6, 2, Q("1.101678 mm")),
    Sketcher.Constraint("Distance", 4, Q("0.258016 mm")),
])
pocket6 = doc.addObject("PartDesign::Pocket", "Pocket005")
body.addObject(pocket6)
pocket6.Profile = sketch10
pocket6.Length = 25

# Sketch on XZ plane
sketch11 = doc.addObject("Sketcher::SketchObject", "Sketch010")
body.addObject(sketch11)
sketch11.AttachmentSupport = (doc.XZ_Plane, [""])
sketch11.MapMode = "FlatFace"
sketch11.AttachmentOffset = App.Placement(V(0, 0, 4), App.Rotation())
sketch11.addGeometry([
    Part.LineSegment(V(-1.447683, 24.449827, 0), V(-0.583, 23.470946, 0)),  # 0
    Part.LineSegment(V(-0.583, 23.470946, 0), V(0.583, 26.946759, 0)),  # 1
    Part.LineSegment(V(0.583, 26.946759, 0), V(-1.844143, 29.694451, 0)),  # 2
    Part.LineSegment(V(-1.844143, 29.694451, 0), V(-2.179681, 28.694221, 0)),  # 3
    Part.LineSegment(V(-2.179681, 28.694221, 0), V(-0.619401, 26.934677, 0)),  # 4
    Part.LineSegment(V(-0.619401, 26.934677, 0), V(-1.447683, 24.449827, 0)),  # 5
], False)
sketch11.addConstraint([
    Sketcher.Constraint("Coincident", 0, 2, 1, 1),
    Sketcher.Constraint("Coincident", 1, 2, 2, 1),
    Sketcher.Constraint("Coincident", 2, 2, 3, 1),
    Sketcher.Constraint("Coincident", 3, 2, 4, 1),
    Sketcher.Constraint("Coincident", 4, 2, 5, 1),
    Sketcher.Constraint("Coincident", 5, 2, 0, 1),
    Sketcher.Constraint("Parallel", 0, 2),
    Sketcher.Constraint("Parallel", 1, 3),
    Sketcher.Constraint("Equal", 1, 2),
    Sketcher.Constraint("DistanceX", 0, 2, -1, 1, Q("0.583 mm")),
    Sketcher.Constraint("DistanceX", -1, 1, 1, 2, Q("0.583 mm")),
    Sketcher.Constraint("DistanceX", 4, 2, -1, 1, Q("0.619401 mm")),
    Sketcher.Constraint("Distance", 3, Q("1.05501 mm")),
    Sketcher.Constraint("Distance", 5, Q("2.619261 mm")),
    Sketcher.Constraint("DistanceY", -1, 1, 1, 2, Q("26.946759 mm")),
    Sketcher.Constraint("DistanceY", -1, 1, 2, 2, Q("29.694451 mm")),
    Sketcher.Constraint("DistanceX", 3, 2, -1, 1, Q("2.179681 mm")),
    Sketcher.Constraint("DistanceY", 0, 2, 4, 2, Q("3.463731 mm")),
])
pocket7 = doc.addObject("PartDesign::Pocket", "Pocket006")
body.addObject(pocket7)
pocket7.Profile = sketch11
pocket7.Length = 25

# Sketch on XZ plane
sketch12 = doc.addObject("Sketcher::SketchObject", "Sketch011")
body.addObject(sketch12)
sketch12.AttachmentSupport = (doc.XZ_Plane, [""])
sketch12.MapMode = "FlatFace"
sketch12.AttachmentOffset = App.Placement(V(0, 0, 4), App.Rotation())
sketch12.addGeometry([
    Part.LineSegment(V(-2.179681, 28.694221, 0), V(-1.844143, 29.694451, 0)),
    Part.LineSegment(V(-1.844143, 29.694451, 0), V(-2.880424, 29.484457, 0)),
    Part.LineSegment(V(-2.880424, 29.484457, 0), V(-2.179681, 28.694221, 0)),
], False)
sketch12.addConstraint([
    Sketcher.Constraint("Coincident", 0, 2, 1, 1),
    Sketcher.Constraint("Coincident", 1, 2, 2, 1),
    Sketcher.Constraint("Coincident", 2, 2, 0, 1),
    Sketcher.Constraint("Distance", 0, Q("1.05501 mm")),
    Sketcher.Constraint("Distance", 2, Q("1.056179 mm")),
    Sketcher.Constraint("DistanceY", -1, 1, 0, 2, Q("29.694451 mm")),
    Sketcher.Constraint("DistanceX", 2, 2, -1, 1, Q("2.179681 mm")),
    Sketcher.Constraint("DistanceY", -1, 1, 2, 2, Q("28.694221 mm")),
    Sketcher.Constraint("DistanceX", 1, 2, 0, 2, Q("1.036281 mm")),
])
pocket8 = doc.addObject("PartDesign::Pocket", "Pocket007")
body.addObject(pocket8)
pocket8.Profile = sketch12
pocket8.Length = 25

# Sketch on XZ plane
sketch13 = doc.addObject("Sketcher::SketchObject", "Sketch012")
body.addObject(sketch13)
sketch13.AttachmentSupport = (doc.XZ_Plane, [""])
sketch13.MapMode = "FlatFace"
sketch13.AttachmentOffset = App.Placement(V(0, 0, 4), App.Rotation())
sketch13.addGeometry([
    Part.LineSegment(V(-1.607363, 23.263367, 0), V(-0.583, 23.470946, 0)),
    Part.LineSegment(V(-0.583, 23.470946, 0), V(-1.447683, 24.449827, 0)),
    Part.LineSegment(V(-1.447683, 24.449827, 0), V(-1.778746, 23.456638, 0)),
    Part.LineSegment(V(-1.778746, 23.456638, 0), V(-1.607363, 23.263367, 0)),
], False)
sketch13.addConstraint([
    Sketcher.Constraint("Coincident", 0, 2, 1, 1),
    Sketcher.Constraint("Coincident", 1, 2, 2, 1),
    Sketcher.Constraint("Coincident", 2, 2, 3, 1),
    Sketcher.Constraint("Coincident", 3, 2, 0, 1),
    Sketcher.Constraint("DistanceX", 0, 2, -1, 1, Q("0.583 mm")),
    Sketcher.Constraint("DistanceY", 0, 2, 1, 2, Q("0.978881 mm")),
    Sketcher.Constraint("DistanceY", 2, 2, 1, 2, Q("0.993189 mm")),
    Sketcher.Constraint("DistanceY", 3, 2, 2, 2, Q("0.193271 mm")),
    Sketcher.Constraint("DistanceX", 3, 2, 1, 2, Q("0.159679 mm")),
    Sketcher.Constraint("Distance", 0, Q("1.045183 mm")),
    Sketcher.Constraint("Distance", 2, Q("1.046913 mm")),
    Sketcher.Constraint("DistanceY", -1, 1, 0, 2, Q("23.470946 mm")),
])
pocket9 = doc.addObject("PartDesign::Pocket", "Pocket008")
body.addObject(pocket9)
pocket9.Profile = sketch13
pocket9.Length = 25

# Sketch on XZ plane
sketch14 = doc.addObject("Sketcher::SketchObject", "Sketch013")
body.addObject(sketch14)
sketch14.AttachmentSupport = (doc.XZ_Plane, [""])
sketch14.MapMode = "FlatFace"
sketch14.AttachmentOffset = App.Placement(V(0, 0, 4), App.Rotation())
sketch14.addGeometry([
    Part.LineSegment(V(-4.176142, 22.742824, 0), V(-1.607363, 23.263367, 0)),
    Part.LineSegment(V(-1.607363, 23.263367, 0), V(-1.778746, 23.456638, 0)),
    Part.LineSegment(V(-1.778746, 23.456638, 0), V(-4.343136, 22.931873, 0)),
    Part.LineSegment(V(-4.343136, 22.931873, 0), V(-4.176142, 22.742824, 0)),
], False)
sketch14.addConstraint([
    Sketcher.Constraint("Coincident", 0, 2, 1, 1),
    Sketcher.Constraint("Coincident", 1, 2, 2, 1),
    Sketcher.Constraint("Coincident", 2, 2, 3, 1),
    Sketcher.Constraint("Coincident", 3, 2, 0, 1),
    Sketcher.Constraint("Distance", 0, Q("2.620991 mm")),
    Sketcher.Constraint("DistanceY", 0, 2, 1, 2, Q("0.193271 mm")),
    Sketcher.Constraint("DistanceX", 2, 2, 1, 2, Q("2.56439 mm")),
    Sketcher.Constraint("DistanceY", 3, 2, 2, 2, Q("0.189049 mm")),
    Sketcher.Constraint("DistanceX", 3, 2, 0, 2, Q("2.568779 mm")),
    Sketcher.Constraint("Distance", 1, Q("0.258314 mm")),
    Sketcher.Constraint("DistanceX", 0, 2, -1, 1, Q("1.607363 mm")),
    Sketcher.Constraint("DistanceY", -1, 1, 0, 2, Q("23.263367 mm")),
])
pocket10 = doc.addObject("PartDesign::Pocket", "Pocket009")
body.addObject(pocket10)
pocket10.Profile = sketch14
pocket10.Length = 25
doc.recompute()

chamfer = doc.addObject("PartDesign::Chamfer", "Chamfer")
body.addObject(chamfer)
chamfer.Base = (pocket10, edges_at(pocket10, [(-11.467, -4, -16.369)]))
chamfer.ChamferType = "Two distances"
chamfer.Size = 2.15
chamfer.Size2 = 3.31071
chamfer.FlipDirection = True
doc.recompute()

chamfer2 = doc.addObject("PartDesign::Chamfer", "Chamfer001")
body.addObject(chamfer2)
chamfer2.Base = (chamfer, edges_at(chamfer, [(-1.85, -4, -18.494)]))
chamfer2.ChamferType = "Two distances"
chamfer2.Size = 3.3
chamfer2.Size2 = 2.39759
chamfer2.FlipDirection = True
doc.recompute()

chamfer3 = doc.addObject("PartDesign::Chamfer", "Chamfer002")
body.addObject(chamfer3)
chamfer3.Base = (chamfer2, edges_at(chamfer2, [(-7.838, -4, -25.004)]))
chamfer3.ChamferType = "Two distances"
chamfer3.Size = 3.3
chamfer3.Size2 = 10.156356
chamfer3.FlipDirection = True

doc.recompute()
